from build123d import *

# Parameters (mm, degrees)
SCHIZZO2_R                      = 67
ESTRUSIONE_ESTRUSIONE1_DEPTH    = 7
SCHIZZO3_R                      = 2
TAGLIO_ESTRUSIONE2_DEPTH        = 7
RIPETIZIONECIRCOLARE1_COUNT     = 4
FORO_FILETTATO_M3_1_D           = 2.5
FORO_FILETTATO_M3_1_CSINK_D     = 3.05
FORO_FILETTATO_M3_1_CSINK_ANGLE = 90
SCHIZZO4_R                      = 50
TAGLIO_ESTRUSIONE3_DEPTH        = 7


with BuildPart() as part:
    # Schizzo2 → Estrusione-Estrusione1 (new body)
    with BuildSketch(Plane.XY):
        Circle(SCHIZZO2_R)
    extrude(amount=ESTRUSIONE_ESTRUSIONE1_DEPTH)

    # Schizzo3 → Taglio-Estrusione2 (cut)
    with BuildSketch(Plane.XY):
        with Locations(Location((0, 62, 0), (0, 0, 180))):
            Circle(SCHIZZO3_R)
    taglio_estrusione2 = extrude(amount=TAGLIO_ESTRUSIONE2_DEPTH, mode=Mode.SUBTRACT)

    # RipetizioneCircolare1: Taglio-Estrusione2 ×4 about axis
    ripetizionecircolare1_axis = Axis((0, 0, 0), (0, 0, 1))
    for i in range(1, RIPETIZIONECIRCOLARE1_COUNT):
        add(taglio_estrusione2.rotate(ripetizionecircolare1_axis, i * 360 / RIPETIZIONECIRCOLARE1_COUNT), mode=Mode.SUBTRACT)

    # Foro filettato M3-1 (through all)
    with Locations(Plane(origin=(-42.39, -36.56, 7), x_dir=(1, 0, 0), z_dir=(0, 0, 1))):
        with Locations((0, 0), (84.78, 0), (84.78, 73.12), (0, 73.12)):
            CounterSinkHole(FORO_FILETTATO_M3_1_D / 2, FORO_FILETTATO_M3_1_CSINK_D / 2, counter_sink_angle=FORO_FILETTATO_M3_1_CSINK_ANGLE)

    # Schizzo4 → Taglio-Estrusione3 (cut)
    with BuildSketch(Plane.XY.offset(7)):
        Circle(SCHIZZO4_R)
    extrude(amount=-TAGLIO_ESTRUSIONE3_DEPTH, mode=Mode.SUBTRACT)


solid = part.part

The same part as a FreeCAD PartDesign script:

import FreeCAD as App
import Part
import Sketcher

V = App.Vector
Q = App.Units.Quantity

doc = App.newDocument("Part")
body = doc.addObject("PartDesign::Body", "Body")

# Sketch on XY plane
sketch1 = body.newObject("Sketcher::SketchObject", "Sketch")
sketch1.AttachmentSupport = (doc.getObject("XY_Plane"), [""])
sketch1.MapMode = "FlatFace"
sketch1.addGeometry(Part.Circle(V(0, 0, 0), V(0, 0, 1), 67), False)
sketch1.addConstraint([
    Sketcher.Constraint("Coincident", 0, 3, -1, 1),
    Sketcher.Constraint("Diameter", 0, Q("134 mm")),
])
pad1 = body.newObject("PartDesign::Pad", "Pad")
pad1.Profile = sketch1
pad1.Length = 7

# Sketch on XY plane
sketch2 = body.newObject("Sketcher::SketchObject", "Sketch001")
sketch2.AttachmentSupport = (doc.getObject("XY_Plane"), [""])
sketch2.MapMode = "FlatFace"
sketch2.addGeometry(Part.Circle(V(0, 62, 0), V(0, 0, 1), 2), False)
sketch2.addConstraint([
    Sketcher.Constraint("PointOnObject", 0, 3, -2),
    Sketcher.Constraint("Diameter", 0, Q("4 mm")),
    Sketcher.Constraint("DistanceY", -1, 1, 0, 3, Q("62 mm")),
])
pocket1 = body.newObject("PartDesign::Pocket", "Pocket")
pocket1.Profile = sketch2
pocket1.Length = 7
pocket1.Reversed = True
doc.recompute()

polarpattern = body.newObject("PartDesign::PolarPattern", "PolarPattern")
polarpattern.Originals = [pocket1]
polarpattern.Axis = (doc.getObject("Z_Axis"), [""])
polarpattern.Angle = 360
polarpattern.Occurrences = 4
body.Tip = polarpattern

# Sketch on XY plane
sketch3 = body.newObject("Sketcher::SketchObject", "Sketch002")
sketch3.AttachmentSupport = (doc.getObject("XY_Plane"), [""])
sketch3.MapMode = "FlatFace"
sketch3.AttachmentOffset = App.Placement(V(0, 0, 7), App.Rotation())
sketch3.addGeometry([
    Part.Circle(V(-42.4, -36.6, 0), V(0, 0, 1), 1.2),
    Part.Circle(V(42.4, -36.6, 0), V(0, 0, 1), 1.2),
    Part.Circle(V(42.4, 36.6, 0), V(0, 0, 1), 1.2),
    Part.Circle(V(-42.4, 36.6, 0), V(0, 0, 1), 1.2),
], False)
sketch3.addConstraint([
    Sketcher.Constraint("Equal", 0, 1),
    Sketcher.Constraint("Equal", 1, 2),
    Sketcher.Constraint("Equal", 2, 3),
    Sketcher.Constraint("Symmetric", 0, 3, 2, 3, -1, 1),
    Sketcher.Constraint("Symmetric", 1, 3, 3, 3, -1, 1),
    Sketcher.Constraint("Symmetric", 0, 3, 1, 3, -2),
    Sketcher.Constraint("Diameter", 0, Q("2.5 mm")),
    Sketcher.Constraint("DistanceX", 0, 3, -1, 1, Q("42.39 mm")),
    Sketcher.Constraint("DistanceY", 0, 3, -1, 1, Q("36.56 mm")),
])
doc.recompute()
hole = body.newObject("PartDesign::Hole", "Hole")
hole.Profile = sketch3
hole.ThreadType = "None"
hole.Diameter = 2.5
hole.DepthType = "ThroughAll"
hole.HoleCutType = "Countersink"
hole.HoleCutDiameter = 3.05
hole.HoleCutCountersinkAngle = 90

# Sketch on XY plane
sketch4 = body.newObject("Sketcher::SketchObject", "Sketch003")
sketch4.AttachmentSupport = (doc.getObject("XY_Plane"), [""])
sketch4.MapMode = "FlatFace"
sketch4.AttachmentOffset = App.Placement(V(0, 0, 7), App.Rotation())
sketch4.addGeometry(Part.Circle(V(0, 0, 0), V(0, 0, 1), 50), False)
sketch4.addConstraint([
    Sketcher.Constraint("Coincident", 0, 3, -1, 1),
    Sketcher.Constraint("Diameter", 0, Q("100 mm")),
])
pocket2 = body.newObject("PartDesign::Pocket", "Pocket001")
pocket2.Profile = sketch4
pocket2.Length = 7

doc.recompute()
